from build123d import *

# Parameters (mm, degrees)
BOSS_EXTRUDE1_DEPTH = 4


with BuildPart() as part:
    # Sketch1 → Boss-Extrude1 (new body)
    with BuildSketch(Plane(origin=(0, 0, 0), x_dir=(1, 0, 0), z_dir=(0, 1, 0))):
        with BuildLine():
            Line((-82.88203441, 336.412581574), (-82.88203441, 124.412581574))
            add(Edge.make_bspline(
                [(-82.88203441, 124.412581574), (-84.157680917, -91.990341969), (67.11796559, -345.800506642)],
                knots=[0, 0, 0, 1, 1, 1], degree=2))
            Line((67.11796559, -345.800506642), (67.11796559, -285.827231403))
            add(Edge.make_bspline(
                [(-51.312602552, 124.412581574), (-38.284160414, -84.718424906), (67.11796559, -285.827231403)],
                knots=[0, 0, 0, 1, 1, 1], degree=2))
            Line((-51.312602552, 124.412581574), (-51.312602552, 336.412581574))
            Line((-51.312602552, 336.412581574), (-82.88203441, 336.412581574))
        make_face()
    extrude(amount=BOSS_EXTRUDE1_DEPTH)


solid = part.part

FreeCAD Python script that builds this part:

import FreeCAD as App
import Part
import Sketcher
from FreeCAD import Vector
Q = App.Units.Quantity

doc = App.newDocument("Part")
params = doc.addObject("Spreadsheet::Sheet", "Params")
for row, (alias, value) in enumerate([
    ("sketch1_height", "212 mm"),
    ("pad1_length", "4 mm"),
], start=1):
    params.set(f"A{row}", alias)
    params.set(f"B{row}", "=" + value)
    params.setAlias(f"B{row}", alias)

body = doc.addObject("PartDesign::Body", "Body")

# Sketch on XZ plane
sketch1 = body.newObject("Sketcher::SketchObject", "Sketch")
sketch1.AttachmentSupport = (doc.getObject("XZ_Plane"), [""])
sketch1.MapMode = "FlatFace"
sketch1.addGeometry([
    Part.LineSegment(Vector(-82.882034, -336.412582, 0), Vector(-82.882034, -124.412582, 0)),  # 0
    Part.BSplineCurve([Vector(-82.882034, -124.412582, 0), Vector(-84.157681, 91.990342, 0), Vector(67.117966, 345.800507, 0)], [3, 3], [0, 1], False, 2, [1, 1, 1], False),  # 1
    Part.LineSegment(Vector(67.117966, 345.800507, 0), Vector(67.117966, 285.827231, 0)),  # 2
    Part.BSplineCurve([Vector(-51.312603, -124.412582, 0), Vector(-38.28416, 84.718425, 0), Vector(67.117966, 285.827231, 0)], [3, 3], [0, 1], False, 2, [1, 1, 1], False),  # 3
    Part.LineSegment(Vector(-51.312603, -124.412582, 0), Vector(-51.312603, -336.412582, 0)),  # 4
    Part.LineSegment(Vector(-51.312603, -336.412582, 0), Vector(-82.882034, -336.412582, 0)),  # 5
], False)
sketch1.addConstraint([
    Sketcher.Constraint("Block", 1),
    Sketcher.Constraint("Block", 3),
    Sketcher.Constraint("Coincident", 0, 2, 1, 1),
    Sketcher.Constraint("Coincident", 1, 2, 2, 1),
    Sketcher.Constraint("Coincident", 2, 2, 3, 2),
    Sketcher.Constraint("Coincident", 3, 1, 4, 1),
    Sketcher.Constraint("Coincident", 4, 2, 5, 1),
    Sketcher.Constraint("Coincident", 5, 2, 0, 1),
    Sketcher.Constraint("Vertical", 0),
    Sketcher.Constraint("Vertical", 4),
    Sketcher.Constraint("Horizontal", 5),
    Sketcher.Constraint("DistanceY", 0, 1, 0, 2, Q("212 mm")),
])
sketch1.setExpression("Constraints[11]", "Params.sketch1_height")
pad1 = body.newObject("PartDesign::Pad", "Pad")
pad1.Profile = sketch1
pad1.setExpression("Length", "Params.pad1_length")
pad1.Reversed = True

doc.recompute()
